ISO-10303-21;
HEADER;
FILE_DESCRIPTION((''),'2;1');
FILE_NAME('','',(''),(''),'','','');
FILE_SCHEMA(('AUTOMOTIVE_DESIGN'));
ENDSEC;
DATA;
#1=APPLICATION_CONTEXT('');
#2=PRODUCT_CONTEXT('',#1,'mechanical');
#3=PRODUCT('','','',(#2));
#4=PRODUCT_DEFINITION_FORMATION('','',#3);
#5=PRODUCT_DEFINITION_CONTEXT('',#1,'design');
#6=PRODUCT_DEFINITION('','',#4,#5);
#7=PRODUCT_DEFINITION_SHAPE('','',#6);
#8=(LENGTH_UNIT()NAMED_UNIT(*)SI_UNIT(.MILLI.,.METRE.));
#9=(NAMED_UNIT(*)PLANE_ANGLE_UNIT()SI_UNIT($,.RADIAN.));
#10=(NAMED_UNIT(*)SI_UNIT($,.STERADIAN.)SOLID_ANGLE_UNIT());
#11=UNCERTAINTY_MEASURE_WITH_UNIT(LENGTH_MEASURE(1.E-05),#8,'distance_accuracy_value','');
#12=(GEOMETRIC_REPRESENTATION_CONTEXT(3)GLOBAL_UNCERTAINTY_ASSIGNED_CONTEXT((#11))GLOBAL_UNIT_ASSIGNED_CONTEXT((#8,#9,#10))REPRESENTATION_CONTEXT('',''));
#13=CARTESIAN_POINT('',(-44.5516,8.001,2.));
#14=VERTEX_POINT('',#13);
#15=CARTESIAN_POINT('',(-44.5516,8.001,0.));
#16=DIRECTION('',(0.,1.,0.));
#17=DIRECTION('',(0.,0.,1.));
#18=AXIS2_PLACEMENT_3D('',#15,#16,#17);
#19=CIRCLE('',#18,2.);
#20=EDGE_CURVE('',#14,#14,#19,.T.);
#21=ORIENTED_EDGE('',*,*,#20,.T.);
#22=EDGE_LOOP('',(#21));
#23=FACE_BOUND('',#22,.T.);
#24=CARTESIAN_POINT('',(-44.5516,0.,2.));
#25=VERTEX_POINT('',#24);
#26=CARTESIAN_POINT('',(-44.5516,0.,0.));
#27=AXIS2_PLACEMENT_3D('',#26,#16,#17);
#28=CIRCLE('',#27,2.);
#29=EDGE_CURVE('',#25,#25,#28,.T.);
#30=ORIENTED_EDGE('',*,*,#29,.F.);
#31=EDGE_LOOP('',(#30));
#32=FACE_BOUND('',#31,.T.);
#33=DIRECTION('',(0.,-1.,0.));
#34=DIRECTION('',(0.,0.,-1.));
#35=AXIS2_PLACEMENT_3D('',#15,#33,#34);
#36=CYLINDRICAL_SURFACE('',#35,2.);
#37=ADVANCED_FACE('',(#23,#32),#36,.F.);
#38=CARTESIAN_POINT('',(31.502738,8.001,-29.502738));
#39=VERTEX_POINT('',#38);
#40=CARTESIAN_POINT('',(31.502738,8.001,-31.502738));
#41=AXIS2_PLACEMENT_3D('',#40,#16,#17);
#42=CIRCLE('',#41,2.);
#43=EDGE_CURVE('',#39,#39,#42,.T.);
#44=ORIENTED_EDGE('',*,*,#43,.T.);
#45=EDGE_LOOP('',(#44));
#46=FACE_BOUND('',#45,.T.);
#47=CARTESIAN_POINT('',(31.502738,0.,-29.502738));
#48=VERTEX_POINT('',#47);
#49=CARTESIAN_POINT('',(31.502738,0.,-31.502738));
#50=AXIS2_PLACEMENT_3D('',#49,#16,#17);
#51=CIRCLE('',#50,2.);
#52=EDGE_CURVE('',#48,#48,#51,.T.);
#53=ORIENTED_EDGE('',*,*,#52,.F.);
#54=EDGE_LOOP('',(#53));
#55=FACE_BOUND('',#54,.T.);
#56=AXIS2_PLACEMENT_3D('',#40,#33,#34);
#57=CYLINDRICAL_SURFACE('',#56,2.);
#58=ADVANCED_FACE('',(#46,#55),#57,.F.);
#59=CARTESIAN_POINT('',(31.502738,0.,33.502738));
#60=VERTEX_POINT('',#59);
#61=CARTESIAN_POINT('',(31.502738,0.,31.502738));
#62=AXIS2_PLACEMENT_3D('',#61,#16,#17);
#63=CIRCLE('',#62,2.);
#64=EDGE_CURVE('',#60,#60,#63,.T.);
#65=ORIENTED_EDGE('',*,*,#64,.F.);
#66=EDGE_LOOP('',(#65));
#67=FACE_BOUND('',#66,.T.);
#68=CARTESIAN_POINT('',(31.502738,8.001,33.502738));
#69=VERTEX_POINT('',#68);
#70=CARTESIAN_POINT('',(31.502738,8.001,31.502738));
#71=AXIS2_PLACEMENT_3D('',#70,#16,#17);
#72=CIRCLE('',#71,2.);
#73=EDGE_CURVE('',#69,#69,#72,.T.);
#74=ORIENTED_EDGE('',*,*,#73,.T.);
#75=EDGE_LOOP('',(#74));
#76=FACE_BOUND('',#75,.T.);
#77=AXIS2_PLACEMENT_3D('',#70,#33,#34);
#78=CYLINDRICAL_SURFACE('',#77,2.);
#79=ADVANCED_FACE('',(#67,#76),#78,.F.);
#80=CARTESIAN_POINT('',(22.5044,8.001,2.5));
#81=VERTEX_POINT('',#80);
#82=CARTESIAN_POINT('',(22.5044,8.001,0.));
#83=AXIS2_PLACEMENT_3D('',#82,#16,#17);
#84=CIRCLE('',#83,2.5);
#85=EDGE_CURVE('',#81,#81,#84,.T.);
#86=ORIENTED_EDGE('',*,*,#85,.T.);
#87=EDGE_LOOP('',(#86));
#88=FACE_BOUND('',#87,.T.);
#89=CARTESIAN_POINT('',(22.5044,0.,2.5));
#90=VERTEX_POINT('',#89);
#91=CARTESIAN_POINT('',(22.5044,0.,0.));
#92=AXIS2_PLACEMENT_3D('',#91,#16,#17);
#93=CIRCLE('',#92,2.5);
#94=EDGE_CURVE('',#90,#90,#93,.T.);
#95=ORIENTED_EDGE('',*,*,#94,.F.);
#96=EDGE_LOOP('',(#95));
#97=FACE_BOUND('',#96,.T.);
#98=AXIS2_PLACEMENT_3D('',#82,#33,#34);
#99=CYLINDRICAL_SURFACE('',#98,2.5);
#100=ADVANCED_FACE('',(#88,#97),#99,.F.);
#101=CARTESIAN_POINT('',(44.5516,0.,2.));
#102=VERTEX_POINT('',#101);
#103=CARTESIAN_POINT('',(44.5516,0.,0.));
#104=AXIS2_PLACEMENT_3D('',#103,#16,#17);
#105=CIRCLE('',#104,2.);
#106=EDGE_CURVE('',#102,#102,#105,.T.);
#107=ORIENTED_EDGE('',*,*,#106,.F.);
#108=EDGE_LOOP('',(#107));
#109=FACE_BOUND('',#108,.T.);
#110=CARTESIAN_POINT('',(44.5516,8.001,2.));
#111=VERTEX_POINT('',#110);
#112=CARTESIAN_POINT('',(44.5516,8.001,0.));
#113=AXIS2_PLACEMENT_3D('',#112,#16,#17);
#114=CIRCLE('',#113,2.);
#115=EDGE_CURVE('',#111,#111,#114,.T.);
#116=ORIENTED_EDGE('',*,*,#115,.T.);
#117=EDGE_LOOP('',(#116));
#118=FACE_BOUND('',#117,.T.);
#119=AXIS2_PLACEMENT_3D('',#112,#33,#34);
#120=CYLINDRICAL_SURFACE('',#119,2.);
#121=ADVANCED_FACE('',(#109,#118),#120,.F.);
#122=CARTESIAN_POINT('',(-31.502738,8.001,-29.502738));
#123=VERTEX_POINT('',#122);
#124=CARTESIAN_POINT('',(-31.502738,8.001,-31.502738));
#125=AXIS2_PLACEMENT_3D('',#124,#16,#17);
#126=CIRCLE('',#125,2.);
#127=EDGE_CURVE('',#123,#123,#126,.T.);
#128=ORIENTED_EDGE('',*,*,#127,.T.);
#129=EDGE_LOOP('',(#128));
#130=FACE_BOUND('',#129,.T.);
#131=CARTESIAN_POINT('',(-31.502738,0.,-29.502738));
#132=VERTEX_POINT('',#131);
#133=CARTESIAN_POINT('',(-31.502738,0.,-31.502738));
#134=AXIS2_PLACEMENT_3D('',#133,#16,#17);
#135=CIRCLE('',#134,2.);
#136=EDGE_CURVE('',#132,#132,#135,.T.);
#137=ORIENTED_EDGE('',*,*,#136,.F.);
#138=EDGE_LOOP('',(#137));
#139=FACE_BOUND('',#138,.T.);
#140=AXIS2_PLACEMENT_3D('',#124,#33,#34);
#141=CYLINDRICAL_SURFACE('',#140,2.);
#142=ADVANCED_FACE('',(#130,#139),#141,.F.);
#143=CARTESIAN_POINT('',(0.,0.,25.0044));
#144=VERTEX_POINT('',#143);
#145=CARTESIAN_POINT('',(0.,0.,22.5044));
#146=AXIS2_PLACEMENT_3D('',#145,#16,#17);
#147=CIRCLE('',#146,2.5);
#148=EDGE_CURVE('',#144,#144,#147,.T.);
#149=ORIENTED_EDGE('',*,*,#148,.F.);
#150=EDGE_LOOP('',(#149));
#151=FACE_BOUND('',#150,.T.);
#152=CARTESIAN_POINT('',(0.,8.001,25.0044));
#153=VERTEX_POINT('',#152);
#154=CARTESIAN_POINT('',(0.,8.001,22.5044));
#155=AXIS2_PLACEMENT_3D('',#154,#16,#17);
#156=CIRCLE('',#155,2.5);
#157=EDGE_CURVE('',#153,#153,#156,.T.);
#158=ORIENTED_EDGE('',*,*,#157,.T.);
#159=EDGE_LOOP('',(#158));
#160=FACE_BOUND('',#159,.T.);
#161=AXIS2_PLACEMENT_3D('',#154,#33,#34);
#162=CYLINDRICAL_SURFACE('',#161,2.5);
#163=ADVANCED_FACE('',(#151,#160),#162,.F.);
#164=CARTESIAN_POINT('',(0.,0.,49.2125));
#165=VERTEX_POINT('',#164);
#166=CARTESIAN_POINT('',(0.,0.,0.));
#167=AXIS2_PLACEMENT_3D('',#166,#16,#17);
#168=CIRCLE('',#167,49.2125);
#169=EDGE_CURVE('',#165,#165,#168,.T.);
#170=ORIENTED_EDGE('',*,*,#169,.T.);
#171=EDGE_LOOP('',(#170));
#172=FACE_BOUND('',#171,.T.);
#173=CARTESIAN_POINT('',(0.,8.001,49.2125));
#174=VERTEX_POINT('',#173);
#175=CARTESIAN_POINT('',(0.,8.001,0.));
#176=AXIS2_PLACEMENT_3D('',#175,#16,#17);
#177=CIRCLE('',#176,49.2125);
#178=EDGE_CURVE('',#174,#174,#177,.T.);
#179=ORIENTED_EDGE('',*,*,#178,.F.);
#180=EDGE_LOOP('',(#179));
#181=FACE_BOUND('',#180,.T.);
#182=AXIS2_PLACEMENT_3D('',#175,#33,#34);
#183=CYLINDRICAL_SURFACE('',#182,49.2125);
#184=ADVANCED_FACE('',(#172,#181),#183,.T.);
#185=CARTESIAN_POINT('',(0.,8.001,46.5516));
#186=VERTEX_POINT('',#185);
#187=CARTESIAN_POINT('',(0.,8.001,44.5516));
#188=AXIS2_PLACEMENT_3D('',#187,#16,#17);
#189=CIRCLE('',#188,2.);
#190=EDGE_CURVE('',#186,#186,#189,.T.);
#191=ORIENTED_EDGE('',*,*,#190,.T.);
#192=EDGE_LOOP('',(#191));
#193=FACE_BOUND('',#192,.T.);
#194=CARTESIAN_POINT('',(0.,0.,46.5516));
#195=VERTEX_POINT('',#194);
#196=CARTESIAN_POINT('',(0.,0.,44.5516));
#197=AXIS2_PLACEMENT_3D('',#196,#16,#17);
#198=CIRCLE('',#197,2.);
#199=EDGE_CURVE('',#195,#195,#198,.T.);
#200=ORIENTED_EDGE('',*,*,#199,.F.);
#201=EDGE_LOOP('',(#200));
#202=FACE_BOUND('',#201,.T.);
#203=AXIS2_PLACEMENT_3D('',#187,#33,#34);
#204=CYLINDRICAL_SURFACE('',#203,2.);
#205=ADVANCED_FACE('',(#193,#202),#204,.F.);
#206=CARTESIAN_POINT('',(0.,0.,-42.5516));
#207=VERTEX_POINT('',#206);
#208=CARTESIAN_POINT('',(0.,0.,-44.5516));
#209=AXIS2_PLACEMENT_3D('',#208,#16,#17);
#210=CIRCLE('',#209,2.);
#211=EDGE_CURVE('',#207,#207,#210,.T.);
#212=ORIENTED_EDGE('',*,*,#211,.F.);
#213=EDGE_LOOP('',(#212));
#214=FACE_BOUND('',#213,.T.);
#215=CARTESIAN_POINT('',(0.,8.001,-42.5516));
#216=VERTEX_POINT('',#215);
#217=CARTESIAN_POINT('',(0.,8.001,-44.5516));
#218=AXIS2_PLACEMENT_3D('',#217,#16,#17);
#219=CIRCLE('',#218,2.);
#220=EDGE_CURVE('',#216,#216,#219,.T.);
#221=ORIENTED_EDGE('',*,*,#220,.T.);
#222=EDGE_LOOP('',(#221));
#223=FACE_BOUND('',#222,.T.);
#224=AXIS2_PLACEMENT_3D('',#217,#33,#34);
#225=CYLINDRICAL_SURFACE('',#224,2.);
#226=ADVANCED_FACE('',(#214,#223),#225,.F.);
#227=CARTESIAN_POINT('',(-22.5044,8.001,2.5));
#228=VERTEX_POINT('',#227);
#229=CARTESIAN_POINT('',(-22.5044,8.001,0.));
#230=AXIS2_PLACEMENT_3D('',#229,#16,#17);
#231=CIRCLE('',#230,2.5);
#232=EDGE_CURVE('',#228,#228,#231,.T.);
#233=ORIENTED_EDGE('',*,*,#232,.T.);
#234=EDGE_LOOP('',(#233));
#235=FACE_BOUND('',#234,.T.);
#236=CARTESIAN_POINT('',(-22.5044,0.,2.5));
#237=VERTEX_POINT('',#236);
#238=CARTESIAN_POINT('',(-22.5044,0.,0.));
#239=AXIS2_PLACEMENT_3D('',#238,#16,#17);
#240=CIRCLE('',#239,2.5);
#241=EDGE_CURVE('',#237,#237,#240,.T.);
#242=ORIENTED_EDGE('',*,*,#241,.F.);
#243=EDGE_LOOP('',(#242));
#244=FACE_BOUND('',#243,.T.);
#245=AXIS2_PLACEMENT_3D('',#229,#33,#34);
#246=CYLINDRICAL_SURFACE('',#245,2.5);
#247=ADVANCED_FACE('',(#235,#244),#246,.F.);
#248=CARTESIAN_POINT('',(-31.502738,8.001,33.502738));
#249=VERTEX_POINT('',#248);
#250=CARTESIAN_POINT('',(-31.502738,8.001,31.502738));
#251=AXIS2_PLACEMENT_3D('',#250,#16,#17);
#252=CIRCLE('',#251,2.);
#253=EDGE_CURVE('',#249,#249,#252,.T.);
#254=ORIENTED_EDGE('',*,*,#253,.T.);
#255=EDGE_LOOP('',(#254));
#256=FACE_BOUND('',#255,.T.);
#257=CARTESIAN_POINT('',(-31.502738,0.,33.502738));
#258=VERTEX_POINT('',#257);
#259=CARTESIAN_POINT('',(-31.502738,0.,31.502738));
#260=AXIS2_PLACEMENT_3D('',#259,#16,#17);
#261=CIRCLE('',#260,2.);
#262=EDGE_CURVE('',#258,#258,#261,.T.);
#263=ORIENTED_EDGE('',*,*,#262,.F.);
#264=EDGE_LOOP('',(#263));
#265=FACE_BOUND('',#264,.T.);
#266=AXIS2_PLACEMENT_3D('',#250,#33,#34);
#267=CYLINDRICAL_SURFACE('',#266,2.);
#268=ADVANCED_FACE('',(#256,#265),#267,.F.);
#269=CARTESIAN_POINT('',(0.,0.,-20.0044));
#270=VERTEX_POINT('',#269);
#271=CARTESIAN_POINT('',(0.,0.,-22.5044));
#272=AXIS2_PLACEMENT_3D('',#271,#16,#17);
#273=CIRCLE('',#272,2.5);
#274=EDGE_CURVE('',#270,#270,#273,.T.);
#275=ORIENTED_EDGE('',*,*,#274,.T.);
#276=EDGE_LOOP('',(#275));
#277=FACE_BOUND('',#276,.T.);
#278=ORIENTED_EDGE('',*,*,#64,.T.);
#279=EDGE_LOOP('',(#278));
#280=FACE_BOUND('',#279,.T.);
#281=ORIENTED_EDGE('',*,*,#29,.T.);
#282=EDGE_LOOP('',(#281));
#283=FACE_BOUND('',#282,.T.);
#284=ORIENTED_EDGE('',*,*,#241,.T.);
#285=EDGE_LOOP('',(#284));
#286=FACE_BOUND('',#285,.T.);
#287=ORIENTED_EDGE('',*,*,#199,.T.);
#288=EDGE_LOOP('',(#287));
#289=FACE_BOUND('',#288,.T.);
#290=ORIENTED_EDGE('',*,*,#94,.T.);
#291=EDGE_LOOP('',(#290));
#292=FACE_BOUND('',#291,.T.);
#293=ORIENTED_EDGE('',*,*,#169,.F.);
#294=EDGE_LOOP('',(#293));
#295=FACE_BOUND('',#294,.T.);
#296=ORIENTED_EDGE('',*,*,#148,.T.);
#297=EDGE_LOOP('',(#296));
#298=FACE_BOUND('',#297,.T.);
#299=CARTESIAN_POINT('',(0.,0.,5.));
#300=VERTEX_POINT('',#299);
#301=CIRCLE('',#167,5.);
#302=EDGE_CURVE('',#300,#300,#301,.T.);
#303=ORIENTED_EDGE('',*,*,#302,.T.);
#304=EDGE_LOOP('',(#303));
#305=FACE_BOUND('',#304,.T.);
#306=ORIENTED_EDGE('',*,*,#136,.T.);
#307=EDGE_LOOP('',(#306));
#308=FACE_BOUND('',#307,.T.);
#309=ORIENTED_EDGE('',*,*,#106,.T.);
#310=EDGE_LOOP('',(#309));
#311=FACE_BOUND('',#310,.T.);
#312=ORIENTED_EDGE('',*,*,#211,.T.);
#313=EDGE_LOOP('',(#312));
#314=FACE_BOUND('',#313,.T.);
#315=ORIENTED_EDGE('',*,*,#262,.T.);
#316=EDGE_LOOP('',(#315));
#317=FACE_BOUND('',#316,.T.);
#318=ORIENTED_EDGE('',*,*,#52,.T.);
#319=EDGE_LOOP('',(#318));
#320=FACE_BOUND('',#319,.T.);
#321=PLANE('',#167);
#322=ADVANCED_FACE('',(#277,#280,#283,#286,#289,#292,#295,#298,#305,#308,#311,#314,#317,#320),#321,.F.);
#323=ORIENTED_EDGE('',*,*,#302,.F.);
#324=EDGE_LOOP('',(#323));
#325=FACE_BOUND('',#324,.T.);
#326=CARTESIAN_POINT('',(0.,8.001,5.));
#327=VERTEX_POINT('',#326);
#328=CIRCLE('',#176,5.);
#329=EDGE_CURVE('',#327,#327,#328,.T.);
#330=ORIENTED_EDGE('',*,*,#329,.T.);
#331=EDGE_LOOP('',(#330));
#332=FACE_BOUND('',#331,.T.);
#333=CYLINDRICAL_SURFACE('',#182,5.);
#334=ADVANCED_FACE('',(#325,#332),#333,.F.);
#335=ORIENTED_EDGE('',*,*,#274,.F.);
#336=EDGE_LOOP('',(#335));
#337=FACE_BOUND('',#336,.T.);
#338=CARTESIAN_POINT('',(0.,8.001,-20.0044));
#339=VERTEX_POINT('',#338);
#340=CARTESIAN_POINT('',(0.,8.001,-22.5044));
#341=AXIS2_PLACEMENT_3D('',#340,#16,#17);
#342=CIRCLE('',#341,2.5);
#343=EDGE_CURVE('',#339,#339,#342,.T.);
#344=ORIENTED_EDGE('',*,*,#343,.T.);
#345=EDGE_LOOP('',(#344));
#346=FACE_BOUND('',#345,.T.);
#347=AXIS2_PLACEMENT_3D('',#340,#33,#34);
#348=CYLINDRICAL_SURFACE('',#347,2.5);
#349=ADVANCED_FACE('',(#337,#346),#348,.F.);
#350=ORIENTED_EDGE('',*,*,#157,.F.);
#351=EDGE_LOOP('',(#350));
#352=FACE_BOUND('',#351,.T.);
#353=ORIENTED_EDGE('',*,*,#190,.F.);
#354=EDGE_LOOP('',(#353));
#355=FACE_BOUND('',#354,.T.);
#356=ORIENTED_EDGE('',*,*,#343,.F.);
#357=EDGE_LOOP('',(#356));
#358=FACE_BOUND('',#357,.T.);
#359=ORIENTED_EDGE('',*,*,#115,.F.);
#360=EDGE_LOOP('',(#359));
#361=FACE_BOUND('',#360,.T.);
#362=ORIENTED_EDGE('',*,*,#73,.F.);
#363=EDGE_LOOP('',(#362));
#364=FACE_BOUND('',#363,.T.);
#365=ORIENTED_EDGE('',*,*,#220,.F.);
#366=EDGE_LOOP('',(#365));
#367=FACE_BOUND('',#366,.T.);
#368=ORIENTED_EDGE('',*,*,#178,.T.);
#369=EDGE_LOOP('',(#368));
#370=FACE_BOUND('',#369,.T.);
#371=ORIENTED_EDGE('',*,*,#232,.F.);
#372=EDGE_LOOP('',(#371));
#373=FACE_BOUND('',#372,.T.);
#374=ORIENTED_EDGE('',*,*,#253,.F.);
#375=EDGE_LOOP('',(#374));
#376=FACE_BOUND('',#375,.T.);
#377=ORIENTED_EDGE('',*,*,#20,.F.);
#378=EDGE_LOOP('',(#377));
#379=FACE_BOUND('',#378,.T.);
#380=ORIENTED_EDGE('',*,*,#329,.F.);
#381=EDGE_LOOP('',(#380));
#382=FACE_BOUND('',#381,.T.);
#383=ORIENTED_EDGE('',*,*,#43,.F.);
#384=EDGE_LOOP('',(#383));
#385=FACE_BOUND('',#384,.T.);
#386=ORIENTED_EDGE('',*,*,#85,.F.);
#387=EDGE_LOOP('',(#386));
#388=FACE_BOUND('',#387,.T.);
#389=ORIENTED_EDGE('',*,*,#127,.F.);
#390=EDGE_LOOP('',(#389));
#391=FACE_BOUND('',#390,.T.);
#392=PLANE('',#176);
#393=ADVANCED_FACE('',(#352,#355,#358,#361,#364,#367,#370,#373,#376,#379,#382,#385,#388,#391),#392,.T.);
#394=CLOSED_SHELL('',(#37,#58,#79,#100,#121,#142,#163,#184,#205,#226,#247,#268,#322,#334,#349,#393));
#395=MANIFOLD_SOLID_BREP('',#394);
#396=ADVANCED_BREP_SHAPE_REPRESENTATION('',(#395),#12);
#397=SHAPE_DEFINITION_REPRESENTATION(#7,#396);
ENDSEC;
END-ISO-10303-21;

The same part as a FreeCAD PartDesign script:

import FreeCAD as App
import Part
import Sketcher
from FreeCAD import Vector
Q = App.Units.Quantity

doc = App.newDocument("Part")
params = doc.addObject("Spreadsheet::Sheet", "Params")
for row, (alias, value) in enumerate([
    ("sketch1_diameter", "4 mm"),
    ("sketch1_diameter2", "5 mm"),
    ("sketch1_diameter3", "10 mm"),
    ("pad1_length", "8.001 mm"),
], start=1):
    params.set(f"A{row}", alias)
    params.set(f"B{row}", "=" + value)
    params.setAlias(f"B{row}", alias)

body = doc.addObject("PartDesign::Body", "Body")

# Sketch on XZ plane
sketch1 = body.newObject("Sketcher::SketchObject", "Sketch")
sketch1.AttachmentSupport = (doc.getObject("XZ_Plane"), [""])
sketch1.MapMode = "FlatFace"
sketch1.addGeometry([
    Part.Circle(Vector(0, 0, 0), Vector(0, 0, 1), 49.2125),  # 0
    Part.Circle(Vector(-31.502738, -31.502738, 0), Vector(0, 0, 1), 2),  # 1
    Part.Circle(Vector(0, -44.5516, 0), Vector(0, 0, 1), 2),  # 2
    Part.Circle(Vector(0, -22.5044, 0), Vector(0, 0, 1), 2.5),  # 3
    Part.Circle(Vector(-44.5516, 0, 0), Vector(0, 0, 1), 2),  # 4
    Part.Circle(Vector(-31.502738, 31.502738, 0), Vector(0, 0, 1), 2),  # 5
    Part.Circle(Vector(-22.5044, 0, 0), Vector(0, 0, 1), 2.5),  # 6
    Part.Circle(Vector(22.5044, 0, 0), Vector(0, 0, 1), 2.5),  # 7
    Part.Circle(Vector(31.502738, -31.502738, 0), Vector(0, 0, 1), 2),  # 8
    Part.Circle(Vector(44.5516, 0, 0), Vector(0, 0, 1), 2),  # 9
    Part.Circle(Vector(0, 0, 0), Vector(0, 0, 1), 5),  # 10
    Part.Circle(Vector(0, 22.5044, 0), Vector(0, 0, 1), 2.5),  # 11
    Part.Circle(Vector(0, 44.5516, 0), Vector(0, 0, 1), 2),  # 12
    Part.Circle(Vector(31.502738, 31.502738, 0), Vector(0, 0, 1), 2),  # 13
], False)
sketch1.addConstraint([
    Sketcher.Constraint("Coincident", 0, 3, -1, 1),
    Sketcher.Constraint("Coincident", 10, 3, -1, 1),
    Sketcher.Constraint("Equal", 1, 2),
    Sketcher.Constraint("Equal", 2, 4),
    Sketcher.Constraint("Equal", 4, 5),
    Sketcher.Constraint("Equal", 3, 6),
    Sketcher.Constraint("Equal", 6, 7),
    Sketcher.Constraint("Equal", 5, 8),
    Sketcher.Constraint("Equal", 8, 9),
    Sketcher.Constraint("Equal", 7, 11),
    Sketcher.Constraint("Equal", 9, 12),
    Sketcher.Constraint("Equal", 12, 13),
    Sketcher.Constraint("Symmetric", 6, 3, 7, 3, -1, 1),
    Sketcher.Constraint("Symmetric", 5, 3, 8, 3, -1, 1),
    Sketcher.Constraint("Symmetric", 4, 3, 9, 3, -1, 1),
    Sketcher.Constraint("Symmetric", 3, 3, 11, 3, -1, 1),
    Sketcher.Constraint("Symmetric", 2, 3, 12, 3, -1, 1),
    Sketcher.Constraint("Symmetric", 1, 3, 13, 3, -1, 1),
    Sketcher.Constraint("Symmetric", 1, 3, 8, 3, -2),
    Sketcher.Constraint("PointOnObject", 2, 3, -2),
    Sketcher.Constraint("PointOnObject", 3, 3, -2),
    Sketcher.Constraint("PointOnObject", 4, 3, -1),
    Sketcher.Constraint("PointOnObject", 6, 3, -1),
    Sketcher.Constraint("Diameter", 1, Q("4 mm")),
    Sketcher.Constraint("Diameter", 3, Q("5 mm")),
    Sketcher.Constraint("Diameter", 10, Q("10 mm")),
    Sketcher.Constraint("Diameter", 0, Q("98.425 mm")),
    Sketcher.Constraint("DistanceY", 2, 3, -1, 1, Q("44.5516 mm")),
    Sketcher.Constraint("DistanceY", 3, 3, -1, 1, Q("22.5044 mm")),
    Sketcher.Constraint("DistanceX", 4, 3, -1, 1, Q("44.5516 mm")),
    Sketcher.Constraint("DistanceX", 6, 3, -1, 1, Q("22.5044 mm")),
    Sketcher.Constraint("DistanceX", 1, 3, -1, 1, Q("31.502738 mm")),
    Sketcher.Constraint("DistanceY", 1, 3, -1, 1, Q("31.502738 mm")),
])
sketch1.setExpression("Constraints[23]", "Params.sketch1_diameter")
sketch1.setExpression("Constraints[24]", "Params.sketch1_diameter2")
sketch1.setExpression("Constraints[25]", "Params.sketch1_diameter3")
pad1 = body.newObject("PartDesign::Pad", "Pad")
pad1.Profile = sketch1
pad1.setExpression("Length", "Params.pad1_length")
pad1.Reversed = True

doc.recompute()
